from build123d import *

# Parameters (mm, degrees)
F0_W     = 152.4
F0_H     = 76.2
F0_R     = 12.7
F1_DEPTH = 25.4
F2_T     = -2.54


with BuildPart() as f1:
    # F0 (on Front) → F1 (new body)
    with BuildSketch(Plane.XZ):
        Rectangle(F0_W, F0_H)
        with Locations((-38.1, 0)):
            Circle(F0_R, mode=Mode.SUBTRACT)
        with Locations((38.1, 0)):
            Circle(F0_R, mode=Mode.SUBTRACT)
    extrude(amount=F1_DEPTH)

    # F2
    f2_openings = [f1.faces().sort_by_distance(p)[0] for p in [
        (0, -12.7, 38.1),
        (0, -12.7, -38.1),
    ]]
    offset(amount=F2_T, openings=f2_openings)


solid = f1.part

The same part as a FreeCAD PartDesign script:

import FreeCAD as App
import Part
import Sketcher
from FreeCAD import Vector
Q = App.Units.Quantity


def faces_at(feature, points):
    """Names of the faces that lie closest to the given points."""
    faces = feature.Shape.Faces
    near = lambda p: min(range(len(faces)), key=lambda i: faces[i].distToShape(Part.Vertex(*p))[0])
    return sorted({f"Face{near(p) + 1}" for p in points})


def add_polygon(sketch, points):
    """Adds a closed chain of lines whose ends are joined by coincident constraints."""
    first, n = sketch.GeometryCount, len(points)
    for a, b in zip(points, points[1:] + points[:1]):
        sketch.addGeometry(Part.LineSegment(App.Vector(*a, 0), App.Vector(*b, 0)), False)
    for i in range(n):
        sketch.addConstraint(Sketcher.Constraint("Coincident", first + i, 2, first + (i + 1) % n, 1))

doc = App.newDocument("Part")
params = doc.addObject("Spreadsheet::Sheet", "Params")
for row, (alias, value) in enumerate([
    ("sketch1_diameter", "1 in"),
    ("sketch1_width", "6 in"),
    ("sketch1_height", "3 in"),
    ("pad1_length", "1 in"),
    ("thickness_wall", "0.1 in"),
], start=1):
    params.set(f"A{row}", alias)
    params.set(f"B{row}", "=" + value)
    params.setAlias(f"B{row}", alias)

body = doc.addObject("PartDesign::Body", "Body")

# Sketch on XZ plane
sketch1 = body.newObject("Sketcher::SketchObject", "Sketch")
sketch1.AttachmentSupport = (doc.getObject("XZ_Plane"), [""])
sketch1.MapMode = "FlatFace"
add_polygon(sketch1, [(-76, 38), (-76, -38), (76, -38), (76, 38)])  # lines 0-3
sketch1.addGeometry(Part.Circle(Vector(-38, 0, 0), Vector(0, 0, 1), 13), False)  # 4
sketch1.addGeometry(Part.Circle(Vector(38, 0, 0), Vector(0, 0, 1), 13), False)  # 5
sketch1.addConstraint([
    Sketcher.Constraint("Vertical", 0),
    Sketcher.Constraint("Horizontal", 1),
    Sketcher.Constraint("Vertical", 2),
    Sketcher.Constraint("Horizontal", 3),
    Sketcher.Constraint("Equal", 4, 5),
    Sketcher.Constraint("Symmetric", 4, 3, 5, 3, -1, 1),
    Sketcher.Constraint("Symmetric", 0, 2, 2, 2, -1, 1),
    Sketcher.Constraint("PointOnObject", 4, 3, -1),
    Sketcher.Constraint("Diameter", 4, Q("1 in")),
    Sketcher.Constraint("DistanceX", 1, 1, 1, 2, Q("6 in")),
    Sketcher.Constraint("DistanceY", 0, 2, 0, 1, Q("3 in")),
    Sketcher.Constraint("DistanceX", 4, 3, 5, 3, Q("3 in")),
])
sketch1.setExpression("Constraints[12]", "Params.sketch1_diameter")
sketch1.setExpression("Constraints[13]", "Params.sketch1_width")
sketch1.setExpression("Constraints[14]", "Params.sketch1_height")
pad1 = body.newObject("PartDesign::Pad", "Pad")
pad1.Profile = sketch1
pad1.setExpression("Length", "Params.pad1_length")
doc.recompute()

thickness = body.newObject("PartDesign::Thickness", "Thickness")
thickness.Base = (pad1, faces_at(pad1, [(0, -12.7, 38.1), (0, -12.7, -38.1)]))
thickness.setExpression("Value", "Params.thickness_wall")
thickness.Reversed = True
thickness.Join = "Arc"

doc.recompute()
